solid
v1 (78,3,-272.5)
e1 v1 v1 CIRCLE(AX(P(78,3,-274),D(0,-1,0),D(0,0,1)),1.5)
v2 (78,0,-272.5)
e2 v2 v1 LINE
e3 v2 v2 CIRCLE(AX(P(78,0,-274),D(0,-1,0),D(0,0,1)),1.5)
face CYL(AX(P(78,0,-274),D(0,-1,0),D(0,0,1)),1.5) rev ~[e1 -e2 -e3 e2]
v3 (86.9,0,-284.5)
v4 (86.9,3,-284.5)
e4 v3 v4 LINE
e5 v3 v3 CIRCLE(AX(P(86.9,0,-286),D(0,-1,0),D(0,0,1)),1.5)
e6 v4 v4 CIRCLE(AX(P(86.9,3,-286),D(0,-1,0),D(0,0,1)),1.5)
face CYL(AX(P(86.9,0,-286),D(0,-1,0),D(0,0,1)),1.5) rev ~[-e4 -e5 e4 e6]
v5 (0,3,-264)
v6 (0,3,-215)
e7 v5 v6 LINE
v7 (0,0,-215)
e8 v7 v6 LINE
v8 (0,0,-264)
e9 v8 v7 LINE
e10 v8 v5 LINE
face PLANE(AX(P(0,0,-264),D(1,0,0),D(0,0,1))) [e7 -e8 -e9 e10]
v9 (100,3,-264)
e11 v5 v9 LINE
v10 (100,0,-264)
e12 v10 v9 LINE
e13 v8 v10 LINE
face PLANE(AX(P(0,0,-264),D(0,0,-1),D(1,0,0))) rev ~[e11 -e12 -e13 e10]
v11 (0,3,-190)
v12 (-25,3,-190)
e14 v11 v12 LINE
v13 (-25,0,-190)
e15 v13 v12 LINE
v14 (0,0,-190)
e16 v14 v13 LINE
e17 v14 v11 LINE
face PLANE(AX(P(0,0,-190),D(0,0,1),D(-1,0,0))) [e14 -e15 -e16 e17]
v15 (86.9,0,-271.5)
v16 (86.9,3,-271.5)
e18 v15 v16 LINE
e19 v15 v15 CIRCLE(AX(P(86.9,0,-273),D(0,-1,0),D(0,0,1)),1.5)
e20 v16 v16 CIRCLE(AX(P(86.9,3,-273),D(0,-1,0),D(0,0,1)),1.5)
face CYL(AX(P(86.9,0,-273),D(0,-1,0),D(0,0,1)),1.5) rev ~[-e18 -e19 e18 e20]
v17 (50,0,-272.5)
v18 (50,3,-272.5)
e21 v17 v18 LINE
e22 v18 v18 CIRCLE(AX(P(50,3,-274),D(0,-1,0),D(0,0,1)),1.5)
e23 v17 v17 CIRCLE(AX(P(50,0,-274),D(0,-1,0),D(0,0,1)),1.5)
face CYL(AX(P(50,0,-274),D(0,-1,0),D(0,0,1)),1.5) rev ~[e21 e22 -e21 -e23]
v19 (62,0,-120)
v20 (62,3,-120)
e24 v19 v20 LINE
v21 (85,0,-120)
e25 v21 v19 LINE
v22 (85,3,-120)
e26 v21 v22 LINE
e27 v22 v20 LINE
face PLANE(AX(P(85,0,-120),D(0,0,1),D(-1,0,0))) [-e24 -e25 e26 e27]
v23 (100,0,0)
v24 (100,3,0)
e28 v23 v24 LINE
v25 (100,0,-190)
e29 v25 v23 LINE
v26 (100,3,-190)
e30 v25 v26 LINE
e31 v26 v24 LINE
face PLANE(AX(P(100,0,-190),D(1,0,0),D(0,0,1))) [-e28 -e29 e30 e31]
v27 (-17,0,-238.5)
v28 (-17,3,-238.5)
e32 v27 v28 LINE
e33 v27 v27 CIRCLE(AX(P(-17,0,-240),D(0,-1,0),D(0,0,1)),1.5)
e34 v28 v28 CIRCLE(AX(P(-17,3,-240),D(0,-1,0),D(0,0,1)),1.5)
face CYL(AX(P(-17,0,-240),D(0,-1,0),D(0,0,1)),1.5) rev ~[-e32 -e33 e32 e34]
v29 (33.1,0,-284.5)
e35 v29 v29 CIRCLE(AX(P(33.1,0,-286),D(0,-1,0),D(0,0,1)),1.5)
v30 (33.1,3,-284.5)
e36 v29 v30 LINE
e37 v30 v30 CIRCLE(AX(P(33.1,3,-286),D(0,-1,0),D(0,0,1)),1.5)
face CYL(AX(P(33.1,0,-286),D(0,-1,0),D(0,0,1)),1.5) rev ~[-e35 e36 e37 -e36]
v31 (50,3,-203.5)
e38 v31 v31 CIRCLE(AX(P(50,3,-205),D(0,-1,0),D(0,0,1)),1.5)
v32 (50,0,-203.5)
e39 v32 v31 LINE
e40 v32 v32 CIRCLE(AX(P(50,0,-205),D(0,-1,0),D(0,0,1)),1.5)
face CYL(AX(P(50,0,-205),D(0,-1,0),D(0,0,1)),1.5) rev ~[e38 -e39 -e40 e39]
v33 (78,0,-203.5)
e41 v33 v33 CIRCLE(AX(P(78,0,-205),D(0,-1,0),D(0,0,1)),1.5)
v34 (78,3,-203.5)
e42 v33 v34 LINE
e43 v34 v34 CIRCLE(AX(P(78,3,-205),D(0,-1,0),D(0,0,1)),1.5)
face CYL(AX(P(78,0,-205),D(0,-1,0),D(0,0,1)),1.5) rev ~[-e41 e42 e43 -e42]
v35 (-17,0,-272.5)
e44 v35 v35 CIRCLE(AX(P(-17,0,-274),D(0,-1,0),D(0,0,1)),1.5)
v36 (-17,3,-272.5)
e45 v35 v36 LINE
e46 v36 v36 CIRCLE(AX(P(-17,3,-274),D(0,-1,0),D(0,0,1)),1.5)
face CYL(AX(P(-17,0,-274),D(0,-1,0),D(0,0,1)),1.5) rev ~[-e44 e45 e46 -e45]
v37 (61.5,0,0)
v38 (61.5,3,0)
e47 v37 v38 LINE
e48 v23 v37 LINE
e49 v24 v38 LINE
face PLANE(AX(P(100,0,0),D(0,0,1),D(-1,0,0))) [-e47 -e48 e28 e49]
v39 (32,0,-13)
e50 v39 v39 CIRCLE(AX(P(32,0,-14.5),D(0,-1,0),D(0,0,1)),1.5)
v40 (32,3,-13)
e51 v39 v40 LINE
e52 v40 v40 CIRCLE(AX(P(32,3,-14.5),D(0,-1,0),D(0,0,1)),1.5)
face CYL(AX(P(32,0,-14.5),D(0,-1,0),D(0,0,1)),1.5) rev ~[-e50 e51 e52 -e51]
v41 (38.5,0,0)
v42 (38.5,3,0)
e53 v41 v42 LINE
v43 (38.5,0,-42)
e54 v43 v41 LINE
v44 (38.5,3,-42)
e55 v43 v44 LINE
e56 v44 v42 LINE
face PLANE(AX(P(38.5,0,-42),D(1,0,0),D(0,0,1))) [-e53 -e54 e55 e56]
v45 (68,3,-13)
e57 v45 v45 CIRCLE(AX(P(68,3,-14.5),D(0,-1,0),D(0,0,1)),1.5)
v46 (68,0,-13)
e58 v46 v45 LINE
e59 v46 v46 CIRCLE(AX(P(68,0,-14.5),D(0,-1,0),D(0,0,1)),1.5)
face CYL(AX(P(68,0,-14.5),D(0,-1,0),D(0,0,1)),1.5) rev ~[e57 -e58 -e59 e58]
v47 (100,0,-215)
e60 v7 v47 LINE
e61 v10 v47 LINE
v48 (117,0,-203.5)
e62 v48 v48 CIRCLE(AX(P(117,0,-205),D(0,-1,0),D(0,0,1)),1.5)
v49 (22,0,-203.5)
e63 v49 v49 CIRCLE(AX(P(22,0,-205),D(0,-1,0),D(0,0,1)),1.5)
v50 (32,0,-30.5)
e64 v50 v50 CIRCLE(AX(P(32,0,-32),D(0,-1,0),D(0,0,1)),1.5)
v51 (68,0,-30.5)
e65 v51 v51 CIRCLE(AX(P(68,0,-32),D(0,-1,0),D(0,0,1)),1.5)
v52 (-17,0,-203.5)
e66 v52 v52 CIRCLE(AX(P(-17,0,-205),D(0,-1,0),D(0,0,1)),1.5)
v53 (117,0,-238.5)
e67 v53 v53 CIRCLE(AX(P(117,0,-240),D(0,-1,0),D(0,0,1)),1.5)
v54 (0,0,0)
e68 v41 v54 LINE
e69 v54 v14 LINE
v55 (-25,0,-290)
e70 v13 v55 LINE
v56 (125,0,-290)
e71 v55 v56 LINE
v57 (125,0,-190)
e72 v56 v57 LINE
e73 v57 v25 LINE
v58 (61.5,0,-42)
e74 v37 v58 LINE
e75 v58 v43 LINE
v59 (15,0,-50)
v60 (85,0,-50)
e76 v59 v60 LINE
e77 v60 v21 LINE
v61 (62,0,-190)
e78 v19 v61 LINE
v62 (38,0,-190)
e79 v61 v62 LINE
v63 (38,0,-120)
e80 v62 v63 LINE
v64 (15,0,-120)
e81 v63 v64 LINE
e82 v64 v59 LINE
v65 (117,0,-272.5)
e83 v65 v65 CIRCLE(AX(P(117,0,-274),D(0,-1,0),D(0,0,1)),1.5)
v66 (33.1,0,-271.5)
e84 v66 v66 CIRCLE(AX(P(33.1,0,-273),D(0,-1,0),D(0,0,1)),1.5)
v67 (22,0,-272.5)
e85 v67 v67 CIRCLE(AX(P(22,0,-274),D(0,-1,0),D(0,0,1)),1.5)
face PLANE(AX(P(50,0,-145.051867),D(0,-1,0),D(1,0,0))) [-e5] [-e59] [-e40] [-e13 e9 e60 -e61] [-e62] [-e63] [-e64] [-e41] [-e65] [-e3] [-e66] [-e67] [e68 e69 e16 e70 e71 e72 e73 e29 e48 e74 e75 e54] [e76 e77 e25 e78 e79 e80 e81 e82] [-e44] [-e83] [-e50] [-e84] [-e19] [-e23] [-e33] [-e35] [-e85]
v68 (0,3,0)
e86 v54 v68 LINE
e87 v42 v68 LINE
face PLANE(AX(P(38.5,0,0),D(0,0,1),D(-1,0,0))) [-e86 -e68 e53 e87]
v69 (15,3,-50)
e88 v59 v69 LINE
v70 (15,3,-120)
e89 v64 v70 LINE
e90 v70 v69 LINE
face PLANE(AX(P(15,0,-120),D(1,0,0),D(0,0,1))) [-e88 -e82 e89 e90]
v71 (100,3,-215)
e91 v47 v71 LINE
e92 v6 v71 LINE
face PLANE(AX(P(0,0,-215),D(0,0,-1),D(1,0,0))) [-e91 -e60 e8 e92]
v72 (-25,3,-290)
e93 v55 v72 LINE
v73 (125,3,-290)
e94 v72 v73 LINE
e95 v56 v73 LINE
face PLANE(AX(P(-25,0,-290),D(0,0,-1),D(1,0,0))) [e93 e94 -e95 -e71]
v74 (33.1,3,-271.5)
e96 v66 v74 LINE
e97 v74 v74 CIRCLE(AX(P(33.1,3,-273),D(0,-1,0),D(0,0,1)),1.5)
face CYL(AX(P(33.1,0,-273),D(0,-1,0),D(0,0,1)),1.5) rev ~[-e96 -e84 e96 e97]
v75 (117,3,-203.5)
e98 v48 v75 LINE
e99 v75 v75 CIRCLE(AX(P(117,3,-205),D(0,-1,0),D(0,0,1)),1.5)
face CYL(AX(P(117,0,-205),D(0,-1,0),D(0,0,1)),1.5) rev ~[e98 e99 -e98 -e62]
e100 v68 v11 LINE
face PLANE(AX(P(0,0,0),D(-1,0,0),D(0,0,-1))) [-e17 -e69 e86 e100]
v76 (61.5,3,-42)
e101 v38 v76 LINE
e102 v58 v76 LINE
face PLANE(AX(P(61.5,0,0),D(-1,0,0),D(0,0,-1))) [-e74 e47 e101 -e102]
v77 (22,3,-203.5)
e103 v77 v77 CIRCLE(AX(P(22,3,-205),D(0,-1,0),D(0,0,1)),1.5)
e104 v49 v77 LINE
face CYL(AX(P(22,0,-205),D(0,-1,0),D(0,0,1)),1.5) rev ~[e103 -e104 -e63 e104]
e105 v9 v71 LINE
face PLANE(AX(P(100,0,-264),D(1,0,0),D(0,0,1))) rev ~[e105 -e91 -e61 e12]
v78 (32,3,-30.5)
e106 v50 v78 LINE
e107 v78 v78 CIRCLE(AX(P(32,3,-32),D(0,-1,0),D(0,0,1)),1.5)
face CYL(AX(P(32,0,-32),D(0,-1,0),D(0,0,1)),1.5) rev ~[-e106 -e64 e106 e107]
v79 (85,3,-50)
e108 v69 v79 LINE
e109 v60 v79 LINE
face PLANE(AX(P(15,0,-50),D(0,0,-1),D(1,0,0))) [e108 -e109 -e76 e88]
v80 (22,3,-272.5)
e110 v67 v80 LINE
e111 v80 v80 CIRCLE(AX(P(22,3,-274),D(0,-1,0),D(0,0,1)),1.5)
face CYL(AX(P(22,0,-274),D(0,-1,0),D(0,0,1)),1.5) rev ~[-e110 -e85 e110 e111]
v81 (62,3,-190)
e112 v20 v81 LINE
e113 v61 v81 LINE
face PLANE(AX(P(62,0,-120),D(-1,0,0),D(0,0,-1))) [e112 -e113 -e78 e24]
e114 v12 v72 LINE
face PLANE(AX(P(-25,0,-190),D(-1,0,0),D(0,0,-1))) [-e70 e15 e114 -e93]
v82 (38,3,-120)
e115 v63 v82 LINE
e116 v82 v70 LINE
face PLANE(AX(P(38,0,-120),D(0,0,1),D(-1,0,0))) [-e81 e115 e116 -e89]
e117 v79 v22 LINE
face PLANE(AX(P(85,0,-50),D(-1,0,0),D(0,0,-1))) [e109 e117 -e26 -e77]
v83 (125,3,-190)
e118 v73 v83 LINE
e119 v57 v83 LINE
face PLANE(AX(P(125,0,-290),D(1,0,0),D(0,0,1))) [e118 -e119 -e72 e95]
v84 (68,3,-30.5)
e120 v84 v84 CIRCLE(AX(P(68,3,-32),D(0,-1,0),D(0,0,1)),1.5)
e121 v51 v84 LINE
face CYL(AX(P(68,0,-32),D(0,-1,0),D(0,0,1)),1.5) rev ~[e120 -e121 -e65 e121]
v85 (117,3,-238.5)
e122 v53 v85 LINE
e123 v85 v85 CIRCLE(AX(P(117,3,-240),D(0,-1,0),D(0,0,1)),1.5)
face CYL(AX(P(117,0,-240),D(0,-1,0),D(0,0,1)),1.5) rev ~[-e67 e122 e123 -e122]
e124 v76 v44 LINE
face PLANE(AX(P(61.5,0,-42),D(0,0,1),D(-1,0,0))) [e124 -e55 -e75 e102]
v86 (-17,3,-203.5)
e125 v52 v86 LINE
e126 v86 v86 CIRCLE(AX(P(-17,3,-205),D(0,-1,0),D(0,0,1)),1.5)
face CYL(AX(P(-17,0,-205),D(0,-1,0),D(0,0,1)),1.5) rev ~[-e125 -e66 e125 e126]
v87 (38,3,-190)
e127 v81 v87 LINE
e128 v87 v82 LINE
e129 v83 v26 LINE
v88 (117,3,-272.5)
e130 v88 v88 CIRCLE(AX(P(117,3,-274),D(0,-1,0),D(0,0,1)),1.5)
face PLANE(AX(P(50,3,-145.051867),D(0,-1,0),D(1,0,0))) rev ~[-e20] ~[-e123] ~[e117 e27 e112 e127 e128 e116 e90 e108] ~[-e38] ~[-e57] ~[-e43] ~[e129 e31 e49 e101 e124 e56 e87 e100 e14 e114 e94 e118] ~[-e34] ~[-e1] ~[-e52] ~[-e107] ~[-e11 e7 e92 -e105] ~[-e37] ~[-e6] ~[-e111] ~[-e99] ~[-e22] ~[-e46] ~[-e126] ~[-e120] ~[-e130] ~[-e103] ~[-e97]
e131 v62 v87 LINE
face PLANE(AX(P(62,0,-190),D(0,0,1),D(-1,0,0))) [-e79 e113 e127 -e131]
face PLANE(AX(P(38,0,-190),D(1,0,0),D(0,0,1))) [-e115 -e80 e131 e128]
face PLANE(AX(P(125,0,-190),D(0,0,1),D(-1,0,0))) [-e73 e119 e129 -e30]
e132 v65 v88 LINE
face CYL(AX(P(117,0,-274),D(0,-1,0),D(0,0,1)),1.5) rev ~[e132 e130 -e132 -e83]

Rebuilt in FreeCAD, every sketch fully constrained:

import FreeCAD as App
import Part
import Sketcher

V = App.Vector

doc = App.newDocument("Part")
body = doc.addObject("PartDesign::Body", "Body")

# Sketch on XZ plane
sketch1 = body.newObject("Sketcher::SketchObject", "Sketch")
sketch1.AttachmentSupport = (doc.getObject("XZ_Plane"), [""])
sketch1.MapMode = "FlatFace"
sketch1.addGeometry([
    Part.LineSegment(V(61.5, -42, 0), V(38.5, -42, 0)),  # 0
    Part.LineSegment(V(38.5, -42, 0), V(38.5, 0, 0)),  # 1
    Part.LineSegment(V(38.5, 0, 0), V(0, 0, 0)),  # 2
    Part.LineSegment(V(0, 0, 0), V(0, -190, 0)),  # 3
    Part.LineSegment(V(0, -190, 0), V(-25, -190, 0)),  # 4
    Part.LineSegment(V(-25, -190, 0), V(-25, -290, 0)),  # 5
    Part.LineSegment(V(-25, -290, 0), V(125, -290, 0)),  # 6
    Part.LineSegment(V(125, -290, 0), V(125, -190, 0)),  # 7
    Part.LineSegment(V(125, -190, 0), V(100, -190, 0)),  # 8
    Part.LineSegment(V(100, -190, 0), V(100, 0, 0)),  # 9
    Part.LineSegment(V(100, 0, 0), V(61.5, 0, 0)),  # 10
    Part.LineSegment(V(61.5, 0, 0), V(61.5, -42, 0)),  # 11
    Part.Circle(V(-17, -274, 0), V(0, 0, 1), 1.5),  # 12
    Part.Circle(V(-17, -240, 0), V(0, 0, 1), 1.5),  # 13
    Part.Circle(V(22, -274, 0), V(0, 0, 1), 1.5),  # 14
    Part.Circle(V(33.1, -286, 0), V(0, 0, 1), 1.5),  # 15
    Part.Circle(V(33.1, -273, 0), V(0, 0, 1), 1.5),  # 16
    Part.Circle(V(-17, -205, 0), V(0, 0, 1), 1.5),  # 17
    Part.Circle(V(22, -205, 0), V(0, 0, 1), 1.5),  # 18
    Part.Circle(V(50, -274, 0), V(0, 0, 1), 1.5),  # 19
    Part.Circle(V(78, -274, 0), V(0, 0, 1), 1.5),  # 20
    Part.LineSegment(V(100, -264, 0), V(0, -264, 0)),  # 21
    Part.LineSegment(V(0, -264, 0), V(0, -215, 0)),  # 22
    Part.LineSegment(V(0, -215, 0), V(100, -215, 0)),  # 23
    Part.LineSegment(V(100, -215, 0), V(100, -264, 0)),  # 24
    Part.Circle(V(86.9, -286, 0), V(0, 0, 1), 1.5),  # 25
    Part.Circle(V(86.9, -273, 0), V(0, 0, 1), 1.5),  # 26
    Part.Circle(V(117, -274, 0), V(0, 0, 1), 1.5),  # 27
    Part.Circle(V(117, -240, 0), V(0, 0, 1), 1.5),  # 28
    Part.Circle(V(50, -205, 0), V(0, 0, 1), 1.5),  # 29
    Part.Circle(V(78, -205, 0), V(0, 0, 1), 1.5),  # 30
    Part.Circle(V(117, -205, 0), V(0, 0, 1), 1.5),  # 31
    Part.Circle(V(32, -32, 0), V(0, 0, 1), 1.5),  # 32
    Part.Circle(V(32, -14.5, 0), V(0, 0, 1), 1.5),  # 33
    Part.LineSegment(V(15, -50, 0), V(85, -50, 0)),  # 34
    Part.LineSegment(V(85, -50, 0), V(85, -120, 0)),  # 35
    Part.LineSegment(V(85, -120, 0), V(62, -120, 0)),  # 36
    Part.LineSegment(V(62, -120, 0), V(62, -190, 0)),  # 37
    Part.LineSegment(V(62, -190, 0), V(38, -190, 0)),  # 38
    Part.LineSegment(V(38, -190, 0), V(38, -120, 0)),  # 39
    Part.LineSegment(V(38, -120, 0), V(15, -120, 0)),  # 40
    Part.LineSegment(V(15, -120, 0), V(15, -50, 0)),  # 41
    Part.Circle(V(68, -32, 0), V(0, 0, 1), 1.5),  # 42
    Part.Circle(V(68, -14.5, 0), V(0, 0, 1), 1.5),  # 43
], False)
sketch1.addConstraint([
    Sketcher.Constraint("Coincident", 0, 2, 1, 1),
    Sketcher.Constraint("Coincident", 1, 2, 2, 1),
    Sketcher.Constraint("Coincident", 2, 2, 3, 1),
    Sketcher.Constraint("Coincident", 3, 2, 4, 1),
    Sketcher.Constraint("Coincident", 4, 2, 5, 1),
    Sketcher.Constraint("Coincident", 5, 2, 6, 1),
    Sketcher.Constraint("Coincident", 6, 2, 7, 1),
    Sketcher.Constraint("Coincident", 7, 2, 8, 1),
    Sketcher.Constraint("Coincident", 8, 2, 9, 1),
    Sketcher.Constraint("Coincident", 9, 2, 10, 1),
    Sketcher.Constraint("Coincident", 10, 2, 11, 1),
    Sketcher.Constraint("Coincident", 11, 2, 0, 1),
    Sketcher.Constraint("Coincident", 21, 2, 22, 1),
    Sketcher.Constraint("Coincident", 22, 2, 23, 1),
    Sketcher.Constraint("Coincident", 23, 2, 24, 1),
    Sketcher.Constraint("Coincident", 24, 2, 21, 1),
    Sketcher.Constraint("Coincident", 34, 2, 35, 1),
    Sketcher.Constraint("Coincident", 35, 2, 36, 1),
    Sketcher.Constraint("Coincident", 36, 2, 37, 1),
    Sketcher.Constraint("Coincident", 37, 2, 38, 1),
    Sketcher.Constraint("Coincident", 38, 2, 39, 1),
    Sketcher.Constraint("Coincident", 39, 2, 40, 1),
    Sketcher.Constraint("Coincident", 40, 2, 41, 1),
    Sketcher.Constraint("Coincident", 41, 2, 34, 1),
    Sketcher.Constraint("Horizontal", 0),
    Sketcher.Constraint("Vertical", 1),
    Sketcher.Constraint("Horizontal", 2),
    Sketcher.Constraint("Vertical", 3),
    Sketcher.Constraint("Horizontal", 4),
    Sketcher.Constraint("Vertical", 5),
    Sketcher.Constraint("Horizontal", 6),
    Sketcher.Constraint("Vertical", 7),
    Sketcher.Constraint("Horizontal", 8),
    Sketcher.Constraint("Vertical", 9),
    Sketcher.Constraint("Horizontal", 10),
    Sketcher.Constraint("Vertical", 11),
    Sketcher.Constraint("Horizontal", 21),
    Sketcher.Constraint("Vertical", 22),
    Sketcher.Constraint("Horizontal", 23),
    Sketcher.Constraint("Vertical", 24),
    Sketcher.Constraint("Horizontal", 34),
    Sketcher.Constraint("Vertical", 35),
    Sketcher.Constraint("Horizontal", 36),
    Sketcher.Constraint("Vertical", 37),
    Sketcher.Constraint("Horizontal", 38),
    Sketcher.Constraint("Vertical", 39),
    Sketcher.Constraint("Horizontal", 40),
    Sketcher.Constraint("Vertical", 41),
    Sketcher.Constraint("Coincident", 2, 2, -1, 1),
    Sketcher.Constraint("Equal", 12, 13),
    Sketcher.Constraint("Equal", 13, 14),
    Sketcher.Constraint("Equal", 14, 15),
    Sketcher.Constraint("Equal", 15, 16),
    Sketcher.Constraint("Equal", 16, 17),
    Sketcher.Constraint("Equal", 17, 18),
    Sketcher.Constraint("Equal", 18, 19),
    Sketcher.Constraint("Equal", 19, 20),
    Sketcher.Constraint("Equal", 20, 25),
    Sketcher.Constraint("Equal", 25, 26),
    Sketcher.Constraint("Equal", 26, 27),
    Sketcher.Constraint("Equal", 27, 28),
    Sketcher.Constraint("Equal", 28, 29),
    Sketcher.Constraint("Equal", 29, 30),
    Sketcher.Constraint("Equal", 30, 31),
    Sketcher.Constraint("Equal", 31, 32),
    Sketcher.Constraint("Equal", 32, 33),
    Sketcher.Constraint("Equal", 33, 42),
    Sketcher.Constraint("Equal", 42, 43),
    Sketcher.Constraint("PointOnObject", 9, 2, -1),
    Sketcher.Constraint("PointOnObject", 21, 2, -2),
    Sketcher.Constraint("Horizontal", 12, 3, 14, 3),
    Sketcher.Constraint("Horizontal", 17, 3, 18, 3),
    Sketcher.Constraint("Horizontal", 14, 3, 19, 3),
    Sketcher.Constraint("Horizontal", 19, 3, 20, 3),
    Sketcher.Constraint("Horizontal", 15, 3, 25, 3),
    Sketcher.Constraint("Horizontal", 16, 3, 26, 3),
    Sketcher.Constraint("Horizontal", 20, 3, 27, 3),
    Sketcher.Constraint("Horizontal", 13, 3, 28, 3),
    Sketcher.Constraint("Horizontal", 18, 3, 29, 3),
    Sketcher.Constraint("Horizontal", 29, 3, 30, 3),
    Sketcher.Constraint("Horizontal", 30, 3, 31, 3),
    Sketcher.Constraint("Horizontal", 32, 3, 42, 3),
    Sketcher.Constraint("Horizontal", 33, 3, 43, 3),
    Sketcher.Constraint("Horizontal", 4, 2, 7, 2),
    Sketcher.Constraint("Horizontal", 8, 2, 37, 2),
    Sketcher.Constraint("Horizontal", 36, 2, 39, 2),
    Sketcher.Constraint("Vertical", 12, 3, 13, 3),
    Sketcher.Constraint("Vertical", 15, 3, 16, 3),
    Sketcher.Constraint("Vertical", 13, 3, 17, 3),
    Sketcher.Constraint("Vertical", 14, 3, 18, 3),
    Sketcher.Constraint("Vertical", 25, 3, 26, 3),
    Sketcher.Constraint("Vertical", 27, 3, 28, 3),
    Sketcher.Constraint("Vertical", 19, 3, 29, 3),
    Sketcher.Constraint("Vertical", 20, 3, 30, 3),
    Sketcher.Constraint("Vertical", 28, 3, 31, 3),
    Sketcher.Constraint("Vertical", 32, 3, 33, 3),
    Sketcher.Constraint("Vertical", 42, 3, 43, 3),
    Sketcher.Constraint("Vertical", 9, 2, 23, 2),
    Sketcher.Constraint("Equal", 4, 8),
    Sketcher.Constraint("Equal", 2, 10),
    Sketcher.Constraint("Equal", 0, 36),
    Sketcher.Constraint("Equal", 36, 40),
    Sketcher.Constraint("Equal", 23, 5),
    Sketcher.Constraint("Equal", 34, 35),
    Sketcher.Constraint("Equal", 35, 37),
    Sketcher.Constraint("Diameter", 12, 3.0),
    Sketcher.Constraint("DistanceX", 0, 2, 0, 1, 23.0),
    Sketcher.Constraint("DistanceX", 4, 2, 4, 1, 25.0),
    Sketcher.Constraint("DistanceX", 6, 1, 6, 2, 150.0),
    Sketcher.Constraint("DistanceX", 34, 1, 34, 2, 70.0),
    Sketcher.Constraint("DistanceY", 1, 1, 1, 2, 42.0),
    Sketcher.Constraint("DistanceY", 3, 2, 3, 1, 190.0),
    Sketcher.Constraint("DistanceY", 22, 1, 22, 2, 49.0),
    Sketcher.Constraint("DistanceX", 12, 3, -1, 1, 17.0),
    Sketcher.Constraint("DistanceY", 12, 3, -1, 1, 274.0),
    Sketcher.Constraint("DistanceY", 13, 3, -1, 1, 240.0),
    Sketcher.Constraint("DistanceX", -1, 1, 14, 3, 22.0),
    Sketcher.Constraint("DistanceY", 15, 3, -1, 1, 286.0),
    Sketcher.Constraint("DistanceY", 16, 3, -1, 1, 273.0),
    Sketcher.Constraint("DistanceY", 17, 3, -1, 1, 205.0),
    Sketcher.Constraint("DistanceX", -1, 1, 19, 3, 50.0),
    Sketcher.Constraint("DistanceX", -1, 1, 20, 3, 78.0),
    Sketcher.Constraint("DistanceX", -1, 1, 27, 3, 117.0),
    Sketcher.Constraint("DistanceX", -1, 1, 32, 3, 32.0),
    Sketcher.Constraint("DistanceY", 32, 3, -1, 1, 32.0),
    Sketcher.Constraint("DistanceX", -1, 1, 42, 3, 68.0),
    Sketcher.Constraint("DistanceY", 21, 2, -1, 1, 264.0),
    Sketcher.Constraint("DistanceX", -1, 1, 34, 2, 85.0),
    Sketcher.Constraint("DistanceX", -1, 1, 15, 3, 33.1),
    Sketcher.Constraint("DistanceX", -1, 1, 25, 3, 86.9),
    Sketcher.Constraint("DistanceY", 33, 3, -1, 1, 14.5),
])
pad1 = body.newObject("PartDesign::Pad", "Pad")
pad1.Profile = sketch1
pad1.Length = 3
pad1.Reversed = True

doc.recompute()
